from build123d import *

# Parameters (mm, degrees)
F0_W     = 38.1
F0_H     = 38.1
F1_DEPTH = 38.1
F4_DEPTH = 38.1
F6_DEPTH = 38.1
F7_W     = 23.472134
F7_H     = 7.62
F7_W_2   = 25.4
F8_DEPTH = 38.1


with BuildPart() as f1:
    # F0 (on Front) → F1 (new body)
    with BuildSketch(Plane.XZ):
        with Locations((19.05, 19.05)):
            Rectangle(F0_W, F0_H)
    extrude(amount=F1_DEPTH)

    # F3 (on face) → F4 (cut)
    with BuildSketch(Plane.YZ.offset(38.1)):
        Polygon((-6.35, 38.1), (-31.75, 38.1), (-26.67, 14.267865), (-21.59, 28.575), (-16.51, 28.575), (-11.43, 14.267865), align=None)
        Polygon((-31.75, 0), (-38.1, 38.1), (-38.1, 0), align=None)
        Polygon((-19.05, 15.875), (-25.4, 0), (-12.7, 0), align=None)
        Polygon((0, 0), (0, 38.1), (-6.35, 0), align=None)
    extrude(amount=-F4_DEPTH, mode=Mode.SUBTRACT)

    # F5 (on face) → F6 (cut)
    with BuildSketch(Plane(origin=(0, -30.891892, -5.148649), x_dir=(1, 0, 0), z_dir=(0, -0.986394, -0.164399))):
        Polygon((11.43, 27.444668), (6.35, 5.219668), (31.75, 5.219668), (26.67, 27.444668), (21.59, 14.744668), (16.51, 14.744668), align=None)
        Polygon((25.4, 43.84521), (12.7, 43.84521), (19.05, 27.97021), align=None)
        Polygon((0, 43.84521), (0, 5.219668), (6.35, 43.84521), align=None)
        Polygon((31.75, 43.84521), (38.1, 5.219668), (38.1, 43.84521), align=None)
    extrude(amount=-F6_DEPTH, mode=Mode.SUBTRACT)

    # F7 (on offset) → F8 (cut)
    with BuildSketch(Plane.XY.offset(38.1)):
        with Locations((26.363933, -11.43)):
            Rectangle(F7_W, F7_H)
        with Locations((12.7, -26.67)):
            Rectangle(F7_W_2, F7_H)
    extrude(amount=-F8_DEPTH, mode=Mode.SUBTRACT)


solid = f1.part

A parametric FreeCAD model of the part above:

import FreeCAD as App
import Part
import Sketcher
from FreeCAD import Vector
Q = App.Units.Quantity

doc = App.newDocument("Part")
body = doc.addObject("PartDesign::Body", "Body")

# Sketch on XZ plane
sketch1 = doc.addObject("Sketcher::SketchObject", "Sketch")
body.addObject(sketch1)
sketch1.AttachmentSupport = (doc.XZ_Plane, [""])
sketch1.MapMode = "FlatFace"
sketch1.addGeometry([
    Part.LineSegment(Vector(0, 38.1, 0), Vector(0, 0, 0)),
    Part.LineSegment(Vector(0, 0, 0), Vector(38.1, 0, 0)),
    Part.LineSegment(Vector(38.1, 0, 0), Vector(38.1, 38.1, 0)),
    Part.LineSegment(Vector(38.1, 38.1, 0), Vector(0, 38.1, 0)),
], False)
sketch1.addConstraint([
    Sketcher.Constraint("Coincident", 0, 2, 1, 1),
    Sketcher.Constraint("Coincident", 1, 2, 2, 1),
    Sketcher.Constraint("Coincident", 2, 2, 3, 1),
    Sketcher.Constraint("Coincident", 3, 2, 0, 1),
    Sketcher.Constraint("Vertical", 0),
    Sketcher.Constraint("Horizontal", 1),
    Sketcher.Constraint("Vertical", 2),
    Sketcher.Constraint("Horizontal", 3),
    Sketcher.Constraint("Coincident", 0, 2, -1, 1),
    Sketcher.Constraint("Equal", 3, 0),
    Sketcher.Constraint("DistanceX", 1, 1, 1, 2, Q("1.5 in")),
])
pad1 = doc.addObject("PartDesign::Pad", "Pad")
body.addObject(pad1)
pad1.Profile = sketch1
pad1.Length = Q("1.5 in")

# Sketch on YZ plane
sketch2 = doc.addObject("Sketcher::SketchObject", "Sketch001")
body.addObject(sketch2)
sketch2.AttachmentSupport = (doc.YZ_Plane, [""])
sketch2.MapMode = "FlatFace"
sketch2.AttachmentOffset = App.Placement(Vector(0, 0, 1.5 * 25.4), App.Rotation())
sketch2.addGeometry([
    Part.LineSegment(Vector(-6.35, 38.1, 0), Vector(-31.75, 38.1, 0)),  # 0
    Part.LineSegment(Vector(-31.75, 38.1, 0), Vector(-26.67, 14.267865, 0)),  # 1
    Part.LineSegment(Vector(-26.67, 14.267865, 0), Vector(-21.59, 28.575, 0)),  # 2
    Part.LineSegment(Vector(-21.59, 28.575, 0), Vector(-16.51, 28.575, 0)),  # 3
    Part.LineSegment(Vector(-16.51, 28.575, 0), Vector(-11.43, 14.267865, 0)),  # 4
    Part.LineSegment(Vector(-11.43, 14.267865, 0), Vector(-6.35, 38.1, 0)),  # 5
    Part.LineSegment(Vector(-31.75, 0, 0), Vector(-38.1, 38.1, 0)),  # 6
    Part.LineSegment(Vector(-38.1, 38.1, 0), Vector(-38.1, 0, 0)),  # 7
    Part.LineSegment(Vector(-38.1, 0, 0), Vector(-31.75, 0, 0)),  # 8
    Part.LineSegment(Vector(-19.05, 15.875, 0), Vector(-25.4, 0, 0)),  # 9
    Part.LineSegment(Vector(-25.4, 0, 0), Vector(-12.7, 0, 0)),  # 10
    Part.LineSegment(Vector(-12.7, 0, 0), Vector(-19.05, 15.875, 0)),  # 11
    Part.LineSegment(Vector(0, 0, 0), Vector(0, 38.1, 0)),  # 12
    Part.LineSegment(Vector(0, 38.1, 0), Vector(-6.35, 0, 0)),  # 13
    Part.LineSegment(Vector(-6.35, 0, 0), Vector(0, 0, 0)),  # 14
], False)
sketch2.addConstraint([
    Sketcher.Constraint("Coincident", 0, 2, 1, 1),
    Sketcher.Constraint("Coincident", 1, 2, 2, 1),
    Sketcher.Constraint("Coincident", 2, 2, 3, 1),
    Sketcher.Constraint("Coincident", 3, 2, 4, 1),
    Sketcher.Constraint("Coincident", 4, 2, 5, 1),
    Sketcher.Constraint("Coincident", 5, 2, 0, 1),
    Sketcher.Constraint("Coincident", 6, 2, 7, 1),
    Sketcher.Constraint("Coincident", 7, 2, 8, 1),
    Sketcher.Constraint("Coincident", 8, 2, 6, 1),
    Sketcher.Constraint("Coincident", 9, 2, 10, 1),
    Sketcher.Constraint("Coincident", 10, 2, 11, 1),
    Sketcher.Constraint("Coincident", 11, 2, 9, 1),
    Sketcher.Constraint("Coincident", 12, 2, 13, 1),
    Sketcher.Constraint("Coincident", 13, 2, 14, 1),
    Sketcher.Constraint("Coincident", 14, 2, 12, 1),
    Sketcher.Constraint("Horizontal", 0),
    Sketcher.Constraint("Horizontal", 3),
    Sketcher.Constraint("Vertical", 7),
    Sketcher.Constraint("Horizontal", 8),
    Sketcher.Constraint("Horizontal", 10),
    Sketcher.Constraint("Vertical", 12),
    Sketcher.Constraint("Horizontal", 14),
    Sketcher.Constraint("Coincident", 14, 2, -1, 1),
    Sketcher.Constraint("PointOnObject", 7, 2, -1),
    Sketcher.Constraint("PointOnObject", 9, 2, -1),
    Sketcher.Constraint("Horizontal", 1, 2, 4, 2),
    Sketcher.Constraint("Horizontal", 5, 2, 6, 2),
    Sketcher.Constraint("Horizontal", 6, 2, 12, 2),
    Sketcher.Constraint("Vertical", 0, 2, 8, 2),
    Sketcher.Constraint("Vertical", 5, 2, 13, 2),
    Sketcher.Constraint("Equal", 8, 14),
    Sketcher.Constraint("Equal", 2, 4),
    Sketcher.Constraint("Equal", 1, 5),
    Sketcher.Constraint("Equal", 9, 11),
    Sketcher.Constraint("DistanceX", 0, 2, 0, 1, Q("1 in")),
    Sketcher.Constraint("DistanceX", 3, 1, 3, 2, Q("0.2 in")),
    Sketcher.Constraint("DistanceX", 10, 1, 10, 2, Q("0.5 in")),
    Sketcher.Constraint("DistanceY", 7, 2, 7, 1, Q("1.5 in")),
    Sketcher.Constraint("DistanceX", 9, 2, -1, 1, Q("1 in")),
    Sketcher.Constraint("DistanceX", 7, 2, 10, 2, Q("1 in")),
    Sketcher.Constraint("DistanceX", 0, 2, 1, 2, Q("0.2 in")),
    Sketcher.Constraint("DistanceY", 11, 2, 2, 2, Q("0.5 in")),
    Sketcher.Constraint("DistanceY", -1, 1, 2, 2, Q("1.125 in")),
    Sketcher.Constraint("Distance", 1, Q("24.367541 mm")),
])
pocket1 = doc.addObject("PartDesign::Pocket", "Pocket")
body.addObject(pocket1)
pocket1.Profile = sketch2
pocket1.Length = Q("1.5 in")

# Sketch on an angled plane
sketch3 = doc.addObject("Sketcher::SketchObject", "Sketch002")
body.addObject(sketch3)
sketch3.Placement = App.Placement(Vector(0, -30.891892, -5.148649), App.Rotation(Vector(1, 0, 0), Vector(0, -0.164398987, 0.986393924), Vector(0, -0.986393924, -0.164398987), "ZXY"))
sketch3.addGeometry([
    Part.LineSegment(Vector(11.43, 27.444668, 0), Vector(6.35, 5.219668, 0)),  # 0
    Part.LineSegment(Vector(6.35, 5.219668, 0), Vector(31.75, 5.219668, 0)),  # 1
    Part.LineSegment(Vector(31.75, 5.219668, 0), Vector(26.67, 27.444668, 0)),  # 2
    Part.LineSegment(Vector(26.67, 27.444668, 0), Vector(21.59, 14.744668, 0)),  # 3
    Part.LineSegment(Vector(21.59, 14.744668, 0), Vector(16.51, 14.744668, 0)),  # 4
    Part.LineSegment(Vector(16.51, 14.744668, 0), Vector(11.43, 27.444668, 0)),  # 5
    Part.LineSegment(Vector(25.4, 43.84521, 0), Vector(12.7, 43.84521, 0)),  # 6
    Part.LineSegment(Vector(12.7, 43.84521, 0), Vector(19.05, 27.97021, 0)),  # 7
    Part.LineSegment(Vector(19.05, 27.97021, 0), Vector(25.4, 43.84521, 0)),  # 8
    Part.LineSegment(Vector(0, 43.84521, 0), Vector(0, 5.219668, 0)),  # 9
    Part.LineSegment(Vector(0, 5.219668, 0), Vector(6.35, 43.84521, 0)),  # 10
    Part.LineSegment(Vector(6.35, 43.84521, 0), Vector(0, 43.84521, 0)),  # 11
    Part.LineSegment(Vector(31.75, 43.84521, 0), Vector(38.1, 5.219668, 0)),  # 12
    Part.LineSegment(Vector(38.1, 5.219668, 0), Vector(38.1, 43.84521, 0)),  # 13
    Part.LineSegment(Vector(38.1, 43.84521, 0), Vector(31.75, 43.84521, 0)),  # 14
], False)
sketch3.addConstraint([
    Sketcher.Constraint("Coincident", 0, 2, 1, 1),
    Sketcher.Constraint("Coincident", 1, 2, 2, 1),
    Sketcher.Constraint("Coincident", 2, 2, 3, 1),
    Sketcher.Constraint("Coincident", 3, 2, 4, 1),
    Sketcher.Constraint("Coincident", 4, 2, 5, 1),
    Sketcher.Constraint("Coincident", 5, 2, 0, 1),
    Sketcher.Constraint("Coincident", 6, 2, 7, 1),
    Sketcher.Constraint("Coincident", 7, 2, 8, 1),
    Sketcher.Constraint("Coincident", 8, 2, 6, 1),
    Sketcher.Constraint("Coincident", 9, 2, 10, 1),
    Sketcher.Constraint("Coincident", 10, 2, 11, 1),
    Sketcher.Constraint("Coincident", 11, 2, 9, 1),
    Sketcher.Constraint("Coincident", 12, 2, 13, 1),
    Sketcher.Constraint("Coincident", 13, 2, 14, 1),
    Sketcher.Constraint("Coincident", 14, 2, 12, 1),
    Sketcher.Constraint("Horizontal", 1),
    Sketcher.Constraint("Horizontal", 4),
    Sketcher.Constraint("Horizontal", 6),
    Sketcher.Constraint("Vertical", 9),
    Sketcher.Constraint("Horizontal", 11),
    Sketcher.Constraint("Vertical", 13),
    Sketcher.Constraint("Horizontal", 14),
    Sketcher.Constraint("PointOnObject", 9, 2, -2),
    Sketcher.Constraint("Parallel", 5, 7),
    Sketcher.Constraint("Parallel", 3, 8),
    Sketcher.Constraint("Horizontal", 2, 2, 5, 2),
    Sketcher.Constraint("Horizontal", 1, 2, 9, 2),
    Sketcher.Constraint("Horizontal", 8, 2, 10, 2),
    Sketcher.Constraint("Horizontal", 9, 2, 12, 2),
    Sketcher.Constraint("Horizontal", 11, 2, 13, 2),
    Sketcher.Constraint("Vertical", 0, 2, 10, 2),
    Sketcher.Constraint("Vertical", 1, 2, 14, 2),
    Sketcher.Constraint("Equal", 11, 14),
    Sketcher.Constraint("Equal", 0, 2),
    Sketcher.Constraint("Equal", 3, 5),
    Sketcher.Constraint("DistanceX", 1, 1, 1, 2, Q("1 in")),
    Sketcher.Constraint("DistanceX", 4, 2, 4, 1, Q("0.2 in")),
    Sketcher.Constraint("DistanceX", 6, 2, 6, 1, Q("0.5 in")),
    Sketcher.Constraint("DistanceX", -1, 1, 8, 2, Q("1 in")),
    Sketcher.Constraint("DistanceX", 6, 2, 13, 2, Q("1 in")),
    Sketcher.Constraint("DistanceX", 2, 2, 1, 2, Q("0.2 in")),
    Sketcher.Constraint("DistanceY", 3, 2, 2, 2, Q("0.5 in")),
    Sketcher.Constraint("DistanceY", 1, 2, 2, 2, Q("0.875 in")),
    Sketcher.Constraint("Distance", 10, Q("39.144029 mm")),
    Sketcher.Constraint("DistanceY", -1, 1, 0, 2, Q("5.219668 mm")),
])
pocket2 = doc.addObject("PartDesign::Pocket", "Pocket001")
body.addObject(pocket2)
pocket2.Profile = sketch3
pocket2.Length = Q("1.5 in")

# Sketch on XY plane
sketch4 = doc.addObject("Sketcher::SketchObject", "Sketch003")
body.addObject(sketch4)
sketch4.AttachmentSupport = (doc.XY_Plane, [""])
sketch4.MapMode = "FlatFace"
sketch4.AttachmentOffset = App.Placement(Vector(0, 0, 1.5 * 25.4), App.Rotation())
sketch4.addGeometry([
    Part.LineSegment(Vector(14.627866, -7.62, 0), Vector(14.627866, -15.24, 0)),  # 0
    Part.LineSegment(Vector(14.627866, -15.24, 0), Vector(38.1, -15.24, 0)),  # 1
    Part.LineSegment(Vector(38.1, -15.24, 0), Vector(38.1, -7.62, 0)),  # 2
    Part.LineSegment(Vector(38.1, -7.62, 0), Vector(14.627866, -7.62, 0)),  # 3
    Part.LineSegment(Vector(0, -22.86, 0), Vector(0, -30.48, 0)),  # 4
    Part.LineSegment(Vector(0, -30.48, 0), Vector(25.4, -30.48, 0)),  # 5
    Part.LineSegment(Vector(25.4, -30.48, 0), Vector(25.4, -22.86, 0)),  # 6
    Part.LineSegment(Vector(25.4, -22.86, 0), Vector(0, -22.86, 0)),  # 7
], False)
sketch4.addConstraint([
    Sketcher.Constraint("Coincident", 0, 2, 1, 1),
    Sketcher.Constraint("Coincident", 1, 2, 2, 1),
    Sketcher.Constraint("Coincident", 2, 2, 3, 1),
    Sketcher.Constraint("Coincident", 3, 2, 0, 1),
    Sketcher.Constraint("Coincident", 4, 2, 5, 1),
    Sketcher.Constraint("Coincident", 5, 2, 6, 1),
    Sketcher.Constraint("Coincident", 6, 2, 7, 1),
    Sketcher.Constraint("Coincident", 7, 2, 4, 1),
    Sketcher.Constraint("Vertical", 0),
    Sketcher.Constraint("Horizontal", 1),
    Sketcher.Constraint("Vertical", 2),
    Sketcher.Constraint("Horizontal", 3),
    Sketcher.Constraint("Vertical", 4),
    Sketcher.Constraint("Horizontal", 5),
    Sketcher.Constraint("Vertical", 6),
    Sketcher.Constraint("Horizontal", 7),
    Sketcher.Constraint("PointOnObject", 4, 2, -2),
    Sketcher.Constraint("Equal", 2, 4),
    Sketcher.Constraint("DistanceX", 5, 1, 5, 2, Q("1 in")),
    Sketcher.Constraint("DistanceY", 0, 2, 0, 1, Q("0.3 in")),
    Sketcher.Constraint("DistanceY", 0, 2, -1, 1, Q("0.6 in")),
    Sketcher.Constraint("DistanceX", -1, 1, 1, 2, Q("1.5 in")),
    Sketcher.Constraint("DistanceY", 4, 2, -1, 1, Q("1.2 in")),
    Sketcher.Constraint("DistanceX", 1, 1, 1, 2, Q("23.472134 mm")),
])
pocket3 = doc.addObject("PartDesign::Pocket", "Pocket002")
body.addObject(pocket3)
pocket3.Profile = sketch4
pocket3.Length = Q("1.5 in")

doc.recompute()
